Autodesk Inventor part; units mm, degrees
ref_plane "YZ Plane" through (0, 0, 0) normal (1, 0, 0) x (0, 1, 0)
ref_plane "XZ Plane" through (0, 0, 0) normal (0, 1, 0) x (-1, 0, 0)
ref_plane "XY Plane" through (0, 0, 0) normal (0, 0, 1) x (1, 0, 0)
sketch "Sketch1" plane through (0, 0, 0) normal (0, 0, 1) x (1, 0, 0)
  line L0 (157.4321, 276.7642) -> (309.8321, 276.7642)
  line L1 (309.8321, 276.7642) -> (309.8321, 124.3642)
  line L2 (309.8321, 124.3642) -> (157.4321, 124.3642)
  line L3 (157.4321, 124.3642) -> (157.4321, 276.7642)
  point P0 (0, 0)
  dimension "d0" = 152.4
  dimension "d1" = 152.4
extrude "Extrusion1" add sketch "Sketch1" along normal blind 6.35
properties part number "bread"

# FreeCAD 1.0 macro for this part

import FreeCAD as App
import Part
import Sketcher
from FreeCAD import Vector
Q = App.Units.Quantity

doc = App.newDocument("Part")
body = doc.addObject("PartDesign::Body", "Body")

sketch1 = doc.addObject("Sketcher::SketchObject", "Sketch")
body.addObject(sketch1)
sketch1.AttachmentSupport = (doc.XY_Plane, [""])
sketch1.MapMode = "FlatFace"
sketch1.addGeometry([
    Part.LineSegment(Vector(310, 277, 0), Vector(157, 277, 0)),
    Part.LineSegment(Vector(157, 277, 0), Vector(157, 124, 0)),
    Part.LineSegment(Vector(157, 124, 0), Vector(310, 124, 0)),
    Part.LineSegment(Vector(310, 124, 0), Vector(310, 277, 0)),
], False)
sketch1.addConstraint([
    Sketcher.Constraint("Coincident", 0, 2, 1, 1),
    Sketcher.Constraint("Coincident", 1, 2, 2, 1),
    Sketcher.Constraint("Coincident", 2, 2, 3, 1),
    Sketcher.Constraint("Coincident", 3, 2, 0, 1),
    Sketcher.Constraint("Horizontal", 0),
    Sketcher.Constraint("Vertical", 1),
    Sketcher.Constraint("Horizontal", 2),
    Sketcher.Constraint("Vertical", 3),
    Sketcher.Constraint("Equal", 2, 1),
    Sketcher.Constraint("DistanceX", 0, 2, 0, 1, Q("6 in")),
    Sketcher.Constraint("DistanceX", -1, 1, 0, 2, Q("6.1981102 in")),
    Sketcher.Constraint("DistanceY", -1, 1, 0, 2, 276.7642),
])
pad1 = doc.addObject("PartDesign::Pad", "Pad")
body.addObject(pad1)
pad1.Profile = sketch1
pad1.Length = Q("0.25 in")

doc.recompute()
